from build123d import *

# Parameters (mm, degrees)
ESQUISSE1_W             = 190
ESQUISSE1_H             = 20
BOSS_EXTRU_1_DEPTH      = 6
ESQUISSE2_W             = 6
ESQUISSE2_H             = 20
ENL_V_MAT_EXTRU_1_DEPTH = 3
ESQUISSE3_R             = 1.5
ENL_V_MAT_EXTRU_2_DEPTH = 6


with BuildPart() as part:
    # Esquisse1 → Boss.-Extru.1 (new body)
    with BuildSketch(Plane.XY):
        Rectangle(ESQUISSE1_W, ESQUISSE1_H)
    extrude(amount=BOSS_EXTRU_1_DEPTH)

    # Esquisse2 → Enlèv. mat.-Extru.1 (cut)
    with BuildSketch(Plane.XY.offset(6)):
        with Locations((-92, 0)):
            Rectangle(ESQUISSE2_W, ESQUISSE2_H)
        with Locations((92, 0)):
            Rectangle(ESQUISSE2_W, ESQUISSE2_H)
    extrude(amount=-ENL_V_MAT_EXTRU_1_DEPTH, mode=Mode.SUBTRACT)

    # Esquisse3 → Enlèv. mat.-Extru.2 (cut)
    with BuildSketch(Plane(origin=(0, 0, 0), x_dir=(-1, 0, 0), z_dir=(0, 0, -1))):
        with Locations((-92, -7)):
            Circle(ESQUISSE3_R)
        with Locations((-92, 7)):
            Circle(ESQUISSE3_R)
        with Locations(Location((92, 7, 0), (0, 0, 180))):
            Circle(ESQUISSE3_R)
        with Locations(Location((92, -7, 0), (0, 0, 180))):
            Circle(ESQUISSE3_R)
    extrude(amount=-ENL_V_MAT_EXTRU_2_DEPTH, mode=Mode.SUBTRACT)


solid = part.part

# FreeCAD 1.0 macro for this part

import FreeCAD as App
import Part
import Sketcher
from FreeCAD import Vector
Q = App.Units.Quantity


def add_polygon(sketch, points):
    """Adds a closed chain of lines whose ends are joined by coincident constraints."""
    first, n = sketch.GeometryCount, len(points)
    for a, b in zip(points, points[1:] + points[:1]):
        sketch.addGeometry(Part.LineSegment(App.Vector(*a, 0), App.Vector(*b, 0)), False)
    for i in range(n):
        sketch.addConstraint(Sketcher.Constraint("Coincident", first + i, 2, first + (i + 1) % n, 1))

doc = App.newDocument("Part")
params = doc.addObject("Spreadsheet::Sheet", "Params")
for row, (alias, value) in enumerate([
    ("sketch1_width", "190 mm"),
    ("sketch1_height", "20 mm"),
    ("pad1_length", "6 mm"),
    ("sketch2_width", "6 mm"),
    ("sketch2_height", "20 mm"),
    ("pocket1_length", "3 mm"),
    ("sketch3_diameter", "3 mm"),
    ("pocket2_length", "6 mm"),
], start=1):
    params.set(f"A{row}", alias)
    params.set(f"B{row}", "=" + value)
    params.setAlias(f"B{row}", alias)

body = doc.addObject("PartDesign::Body", "Body")

sketch1 = body.newObject("Sketcher::SketchObject", "Sketch")
sketch1.AttachmentSupport = (doc.getObject("XY_Plane"), [""])
sketch1.MapMode = "FlatFace"
add_polygon(sketch1, [(-95, 10), (-95, -10), (95, -10), (95, 10)])
sketch1.addConstraint([
    Sketcher.Constraint("Vertical", 0),
    Sketcher.Constraint("Horizontal", 1),
    Sketcher.Constraint("Vertical", 2),
    Sketcher.Constraint("Horizontal", 3),
    Sketcher.Constraint("Symmetric", 0, 2, 2, 2, -1, 1),
    Sketcher.Constraint("DistanceX", 1, 1, 1, 2, Q("190 mm")),
    Sketcher.Constraint("DistanceY", 0, 2, 0, 1, Q("20 mm")),
])
sketch1.setExpression("Constraints[9]", "Params.sketch1_width")
sketch1.setExpression("Constraints[10]", "Params.sketch1_height")
pad1 = body.newObject("PartDesign::Pad", "Pad")
pad1.Profile = sketch1
pad1.setExpression("Length", "Params.pad1_length")

sketch2 = body.newObject("Sketcher::SketchObject", "Sketch001")
sketch2.AttachmentSupport = (doc.getObject("XY_Plane"), [""])
sketch2.MapMode = "FlatFace"
sketch2.AttachmentOffset = App.Placement(Vector(0, 0, 6), App.Rotation())
add_polygon(sketch2, [(-95, 10), (-95, -10), (-89, -10), (-89, 10)])
add_polygon(sketch2, [(89, 10), (89, -10), (95, -10), (95, 10)])
sketch2.addConstraint([
    Sketcher.Constraint("Vertical", 0),
    Sketcher.Constraint("Horizontal", 1),
    Sketcher.Constraint("Vertical", 2),
    Sketcher.Constraint("Horizontal", 3),
    Sketcher.Constraint("Vertical", 4),
    Sketcher.Constraint("Horizontal", 5),
    Sketcher.Constraint("Vertical", 6),
    Sketcher.Constraint("Horizontal", 7),
    Sketcher.Constraint("Symmetric", 2, 2, 4, 2, -1, 1),
    Sketcher.Constraint("Symmetric", 0, 2, 6, 2, -1, 1),
    Sketcher.Constraint("Horizontal", 1, 2, 4, 2),
    Sketcher.Constraint("DistanceX", 1, 1, 1, 2, Q("6 mm")),
    Sketcher.Constraint("DistanceY", 0, 2, 0, 1, Q("20 mm")),
    Sketcher.Constraint("DistanceX", 0, 2, -1, 1, Q("95 mm")),
])
sketch2.setExpression("Constraints[19]", "Params.sketch2_width")
sketch2.setExpression("Constraints[20]", "Params.sketch2_height")
pocket1 = body.newObject("PartDesign::Pocket", "Pocket")
pocket1.Profile = sketch2
pocket1.setExpression("Length", "Params.pocket1_length")

sketch3 = body.newObject("Sketcher::SketchObject", "Sketch002")
sketch3.AttachmentSupport = (doc.getObject("XY_Plane"), [""])
sketch3.MapMode = "FlatFace"
sketch3.addGeometry([
    Part.Circle(Vector(92, -7, 0), Vector(0, 0, 1), 1.5),
    Part.Circle(Vector(92, 7, 0), Vector(0, 0, 1), 1.5),
    Part.Circle(Vector(-92, 7, 0), Vector(0, 0, 1), 1.5),
    Part.Circle(Vector(-92, -7, 0), Vector(0, 0, 1), 1.5),
], False)
sketch3.addConstraint([
    Sketcher.Constraint("Equal", 0, 1),
    Sketcher.Constraint("Equal", 1, 2),
    Sketcher.Constraint("Equal", 2, 3),
    Sketcher.Constraint("Symmetric", 0, 3, 2, 3, -1, 1),
    Sketcher.Constraint("Symmetric", 1, 3, 3, 3, -1, 1),
    Sketcher.Constraint("Symmetric", 1, 3, 2, 3, -2),
    Sketcher.Constraint("Diameter", 0, Q("3 mm")),
    Sketcher.Constraint("DistanceX", -1, 1, 0, 3, Q("92 mm")),
    Sketcher.Constraint("DistanceY", 0, 3, -1, 1, Q("7 mm")),
])
sketch3.setExpression("Constraints[6]", "Params.sketch3_diameter")
pocket2 = body.newObject("PartDesign::Pocket", "Pocket001")
pocket2.Profile = sketch3
pocket2.setExpression("Length", "Params.pocket2_length")
pocket2.Reversed = True

doc.recompute()
